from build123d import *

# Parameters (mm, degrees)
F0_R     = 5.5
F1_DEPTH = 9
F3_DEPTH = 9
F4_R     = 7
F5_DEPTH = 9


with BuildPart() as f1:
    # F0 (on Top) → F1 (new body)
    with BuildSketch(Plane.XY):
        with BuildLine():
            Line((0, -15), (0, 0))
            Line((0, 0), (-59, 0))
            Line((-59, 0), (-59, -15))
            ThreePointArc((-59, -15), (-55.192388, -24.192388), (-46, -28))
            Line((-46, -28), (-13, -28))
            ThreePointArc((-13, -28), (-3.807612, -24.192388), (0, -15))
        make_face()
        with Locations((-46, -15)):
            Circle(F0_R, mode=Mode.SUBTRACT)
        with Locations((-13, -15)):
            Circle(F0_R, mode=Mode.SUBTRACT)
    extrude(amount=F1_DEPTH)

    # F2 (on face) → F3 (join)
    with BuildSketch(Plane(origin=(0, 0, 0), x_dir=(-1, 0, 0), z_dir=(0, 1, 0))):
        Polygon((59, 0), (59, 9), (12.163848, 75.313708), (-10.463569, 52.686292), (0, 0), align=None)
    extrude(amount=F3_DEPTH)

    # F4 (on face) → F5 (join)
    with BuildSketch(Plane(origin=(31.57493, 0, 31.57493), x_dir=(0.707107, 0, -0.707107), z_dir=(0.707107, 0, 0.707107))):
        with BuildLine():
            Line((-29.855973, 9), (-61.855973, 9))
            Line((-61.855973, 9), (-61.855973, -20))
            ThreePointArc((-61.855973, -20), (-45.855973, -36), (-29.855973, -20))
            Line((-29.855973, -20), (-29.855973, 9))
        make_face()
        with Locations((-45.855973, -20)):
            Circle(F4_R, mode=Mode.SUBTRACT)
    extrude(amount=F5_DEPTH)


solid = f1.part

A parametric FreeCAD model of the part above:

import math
import FreeCAD as App
import Part
import Sketcher

V = App.Vector
Q = App.Units.Quantity


def add_polygon(sketch, points):
    """Adds a closed chain of lines whose ends are joined by coincident constraints."""
    first, n = sketch.GeometryCount, len(points)
    for a, b in zip(points, points[1:] + points[:1]):
        sketch.addGeometry(Part.LineSegment(App.Vector(*a, 0), App.Vector(*b, 0)), False)
    for i in range(n):
        sketch.addConstraint(Sketcher.Constraint("Coincident", first + i, 2, first + (i + 1) % n, 1))

doc = App.newDocument("Part")
params = doc.addObject("Spreadsheet::Sheet", "Params")
for row, (alias, value) in enumerate([
    ("sketch1_diameter", "11 mm"),
    ("sketch1_radius", "13.000001 mm"),
    ("sketch1_width", "59 mm"),
    ("sketch1_height", "15 mm"),
    ("pad1_length", "9 mm"),
    ("sketch2_width", "59 mm"),
    ("sketch2_height", "9 mm"),
    ("sketch2_length", "31.999999 mm"),
    ("pad2_length", "9 mm"),
    ("sketch3_diameter", "14 mm"),
    ("sketch3_radius", "16 mm"),
    ("sketch3_height", "29 mm"),
    ("pad3_length", "9 mm"),
], start=1):
    params.set(f"A{row}", alias)
    params.set(f"B{row}", "=" + value)
    params.setAlias(f"B{row}", alias)

body = doc.addObject("PartDesign::Body", "Body")

sketch1 = body.newObject("Sketcher::SketchObject", "Sketch")
sketch1.AttachmentSupport = (doc.getObject("XY_Plane"), [""])
sketch1.MapMode = "FlatFace"
sketch1.addGeometry([
    Part.LineSegment(V(0, -15, 0), V(0, 0, 0)),
    Part.LineSegment(V(0, 0, 0), V(-59, 0, 0)),
    Part.LineSegment(V(-59, 0, 0), V(-59, -15, 0)),
    Part.ArcOfCircle(Part.Circle(V(-46, -15, 0), V(0, 0, 1), 13), math.radians(-180), math.radians(-90)),
    Part.LineSegment(V(-46, -28, 0), V(-13, -28, 0)),
    Part.ArcOfCircle(Part.Circle(V(-13, -15, 0), V(0, 0, 1), 13), math.radians(-90), math.radians(0)),
    Part.Circle(V(-46, -15, 0), V(0, 0, 1), 6),
    Part.Circle(V(-13, -15, 0), V(0, 0, 1), 6),
], False)
sketch1.addConstraint([
    Sketcher.Constraint("Coincident", 0, 2, 1, 1),
    Sketcher.Constraint("Coincident", 1, 2, 2, 1),
    Sketcher.Constraint("Tangent", 2, 2, 3, 1),
    Sketcher.Constraint("Tangent", 3, 2, 4, 1),
    Sketcher.Constraint("Tangent", 4, 2, 5, 1),
    Sketcher.Constraint("Tangent", 5, 2, 0, 1),
    Sketcher.Constraint("Vertical", 0),
    Sketcher.Constraint("Horizontal", 1),
    Sketcher.Constraint("Vertical", 2),
    Sketcher.Constraint("Horizontal", 4),
    Sketcher.Constraint("Coincident", 0, 2, -1, 1),
    Sketcher.Constraint("Coincident", 6, 3, 3, 3),
    Sketcher.Constraint("Coincident", 7, 3, 5, 3),
    Sketcher.Constraint("Equal", 3, 5),
    Sketcher.Constraint("Equal", 6, 7),
    Sketcher.Constraint("Diameter", 6, 11.0),
    Sketcher.Constraint("Radius", 3, 13.000001),
    Sketcher.Constraint("DistanceX", 1, 2, 1, 1, 59.0),
    Sketcher.Constraint("DistanceY", 0, 1, 0, 2, 15.0),
])
sketch1.setExpression("Constraints[15]", "Params.sketch1_diameter")
sketch1.setExpression("Constraints[16]", "Params.sketch1_radius")
sketch1.setExpression("Constraints[17]", "Params.sketch1_width")
sketch1.setExpression("Constraints[18]", "Params.sketch1_height")
pad1 = body.newObject("PartDesign::Pad", "Pad")
pad1.Profile = sketch1
pad1.setExpression("Length", "Params.pad1_length")

sketch2 = body.newObject("Sketcher::SketchObject", "Sketch001")
sketch2.AttachmentSupport = (doc.getObject("XZ_Plane"), [""])
sketch2.MapMode = "FlatFace"
add_polygon(sketch2, [(-59, 0), (-59, 9), (-12, 75), (10, 53), (0, 0)])
sketch2.addConstraint([
    Sketcher.Constraint("Vertical", 0),
    Sketcher.Constraint("Horizontal", 4),
    Sketcher.Constraint("Coincident", 3, 2, -1, 1),
    Sketcher.Constraint("DistanceX", 4, 2, 4, 1, 59.0),
    Sketcher.Constraint("DistanceY", 0, 1, 0, 2, 9.0),
    Sketcher.Constraint("Angle", 2, Q("-44.999999 deg")),
    Sketcher.Constraint("Distance", 2, 31.999999),
    Sketcher.Constraint("DistanceY", -1, 1, 1, 2, 75.313708),
    Sketcher.Constraint("DistanceX", -1, 1, 2, 2, 10.463569),
])
sketch2.setExpression("Constraints[8]", "Params.sketch2_width")
sketch2.setExpression("Constraints[9]", "Params.sketch2_height")
sketch2.setExpression("Constraints[11]", "Params.sketch2_length")
pad2 = body.newObject("PartDesign::Pad", "Pad001")
pad2.Profile = sketch2
pad2.setExpression("Length", "Params.pad2_length")
pad2.Reversed = True

sketch3 = body.newObject("Sketcher::SketchObject", "Sketch002")
sketch3.Placement = App.Placement(V(31.57493, 0, 31.57493), App.Rotation(V(0.707106781, 0, -0.707106781), V(0, 0.999999999, 0), V(0.707106781, 0, 0.707106781), "ZXY"))
sketch3.addGeometry([
    Part.LineSegment(V(-30, 9, 0), V(-62, 9, 0)),
    Part.LineSegment(V(-62, 9, 0), V(-62, -20, 0)),
    Part.ArcOfCircle(Part.Circle(V(-46, -20, 0), V(0, 0, 1), 16), math.radians(180), math.radians(360)),
    Part.LineSegment(V(-30, -20, 0), V(-30, 9, 0)),
    Part.Circle(V(-46, -20, 0), V(0, 0, 1), 7),
], False)
sketch3.addConstraint([
    Sketcher.Constraint("Coincident", 0, 2, 1, 1),
    Sketcher.Constraint("Tangent", 1, 2, 2, 1),
    Sketcher.Constraint("Tangent", 2, 2, 3, 1),
    Sketcher.Constraint("Coincident", 3, 2, 0, 1),
    Sketcher.Constraint("Horizontal", 0),
    Sketcher.Constraint("Vertical", 1),
    Sketcher.Constraint("Vertical", 3),
    Sketcher.Constraint("Coincident", 4, 3, 2, 3),
    Sketcher.Constraint("Diameter", 4, 14.0),
    Sketcher.Constraint("Radius", 2, 16.0),
    Sketcher.Constraint("DistanceY", 1, 2, 1, 1, 29.0),
    Sketcher.Constraint("DistanceY", 2, 3, -1, 1, 20.0),
    Sketcher.Constraint("DistanceX", 2, 3, -1, 1, 45.855973),
])
sketch3.setExpression("Constraints[8]", "Params.sketch3_diameter")
sketch3.setExpression("Constraints[9]", "Params.sketch3_radius")
sketch3.setExpression("Constraints[10]", "Params.sketch3_height")
pad3 = body.newObject("PartDesign::Pad", "Pad002")
pad3.Profile = sketch3
pad3.setExpression("Length", "Params.pad3_length")

doc.recompute()
